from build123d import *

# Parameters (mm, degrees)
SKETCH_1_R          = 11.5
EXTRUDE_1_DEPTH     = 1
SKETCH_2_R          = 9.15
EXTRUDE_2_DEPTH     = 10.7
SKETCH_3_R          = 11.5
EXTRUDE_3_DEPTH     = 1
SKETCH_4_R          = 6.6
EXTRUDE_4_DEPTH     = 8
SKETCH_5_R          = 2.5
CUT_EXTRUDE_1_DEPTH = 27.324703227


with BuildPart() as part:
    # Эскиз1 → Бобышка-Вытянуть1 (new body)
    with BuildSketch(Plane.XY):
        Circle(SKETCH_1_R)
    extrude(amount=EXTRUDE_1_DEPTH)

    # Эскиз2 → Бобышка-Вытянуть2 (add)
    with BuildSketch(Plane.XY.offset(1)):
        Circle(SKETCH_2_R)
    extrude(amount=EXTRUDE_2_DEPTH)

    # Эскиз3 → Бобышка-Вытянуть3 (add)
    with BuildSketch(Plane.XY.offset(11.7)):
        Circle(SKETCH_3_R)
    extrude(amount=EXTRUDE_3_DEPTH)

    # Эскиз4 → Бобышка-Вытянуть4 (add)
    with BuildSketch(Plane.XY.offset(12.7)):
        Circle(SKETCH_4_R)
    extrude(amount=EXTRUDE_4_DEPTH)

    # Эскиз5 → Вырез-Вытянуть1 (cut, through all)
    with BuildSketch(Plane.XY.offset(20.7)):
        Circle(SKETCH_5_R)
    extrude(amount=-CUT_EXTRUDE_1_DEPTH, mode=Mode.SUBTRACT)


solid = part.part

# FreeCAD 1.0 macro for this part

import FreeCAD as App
import Part
import Sketcher

doc = App.newDocument("Part")
body = doc.addObject("PartDesign::Body", "Body")

sketch1 = body.newObject("Sketcher::SketchObject", "Sketch")
sketch1.AttachmentSupport = (doc.getObject("XY_Plane"), [""])
sketch1.MapMode = "FlatFace"
sketch1.addGeometry(Part.Circle(App.Vector(0, 0, 0), App.Vector(0, 0, 1), 12), False)
sketch1.addConstraint(Sketcher.Constraint("Coincident", 0, 3, -1, 1))
sketch1.addConstraint(Sketcher.Constraint("Diameter", 0, 23.0))
pad1 = body.newObject("PartDesign::Pad", "Pad")
pad1.Profile = sketch1
pad1.Length = 1

sketch2 = body.newObject("Sketcher::SketchObject", "Sketch001")
sketch2.AttachmentSupport = (doc.getObject("XY_Plane"), [""])
sketch2.MapMode = "FlatFace"
sketch2.AttachmentOffset = App.Placement(App.Vector(0, 0, 1), App.Rotation())
sketch2.addGeometry(Part.Circle(App.Vector(0, 0, 0), App.Vector(0, 0, 1), 9), False)
sketch2.addConstraint(Sketcher.Constraint("Coincident", 0, 3, -1, 1))
sketch2.addConstraint(Sketcher.Constraint("Diameter", 0, 18.3))
pad2 = body.newObject("PartDesign::Pad", "Pad001")
pad2.Profile = sketch2
pad2.Length = 10.7

sketch3 = body.newObject("Sketcher::SketchObject", "Sketch002")
sketch3.AttachmentSupport = (doc.getObject("XY_Plane"), [""])
sketch3.MapMode = "FlatFace"
sketch3.AttachmentOffset = App.Placement(App.Vector(0, 0, 11.7), App.Rotation())
sketch3.addGeometry(Part.Circle(App.Vector(0, 0, 0), App.Vector(0, 0, 1), 12), False)
sketch3.addConstraint(Sketcher.Constraint("Coincident", 0, 3, -1, 1))
sketch3.addConstraint(Sketcher.Constraint("Diameter", 0, 23.0))
pad3 = body.newObject("PartDesign::Pad", "Pad002")
pad3.Profile = sketch3
pad3.Length = 1

sketch4 = body.newObject("Sketcher::SketchObject", "Sketch003")
sketch4.AttachmentSupport = (doc.getObject("XY_Plane"), [""])
sketch4.MapMode = "FlatFace"
sketch4.AttachmentOffset = App.Placement(App.Vector(0, 0, 12.7), App.Rotation())
sketch4.addGeometry(Part.Circle(App.Vector(0, 0, 0), App.Vector(0, 0, 1), 7), False)
sketch4.addConstraint(Sketcher.Constraint("Coincident", 0, 3, -1, 1))
sketch4.addConstraint(Sketcher.Constraint("Diameter", 0, 13.2))
pad4 = body.newObject("PartDesign::Pad", "Pad003")
pad4.Profile = sketch4
pad4.Length = 8

sketch5 = body.newObject("Sketcher::SketchObject", "Sketch004")
sketch5.AttachmentSupport = (doc.getObject("XY_Plane"), [""])
sketch5.MapMode = "FlatFace"
sketch5.AttachmentOffset = App.Placement(App.Vector(0, 0, 20.7), App.Rotation())
sketch5.addGeometry(Part.Circle(App.Vector(0, 0, 0), App.Vector(0, 0, 1), 2.5), False)
sketch5.addConstraint(Sketcher.Constraint("Coincident", 0, 3, -1, 1))
sketch5.addConstraint(Sketcher.Constraint("Diameter", 0, 5.0))
pocket1 = body.newObject("PartDesign::Pocket", "Pocket")
pocket1.Profile = sketch5
pocket1.Type = "ThroughAll"

doc.recompute()
